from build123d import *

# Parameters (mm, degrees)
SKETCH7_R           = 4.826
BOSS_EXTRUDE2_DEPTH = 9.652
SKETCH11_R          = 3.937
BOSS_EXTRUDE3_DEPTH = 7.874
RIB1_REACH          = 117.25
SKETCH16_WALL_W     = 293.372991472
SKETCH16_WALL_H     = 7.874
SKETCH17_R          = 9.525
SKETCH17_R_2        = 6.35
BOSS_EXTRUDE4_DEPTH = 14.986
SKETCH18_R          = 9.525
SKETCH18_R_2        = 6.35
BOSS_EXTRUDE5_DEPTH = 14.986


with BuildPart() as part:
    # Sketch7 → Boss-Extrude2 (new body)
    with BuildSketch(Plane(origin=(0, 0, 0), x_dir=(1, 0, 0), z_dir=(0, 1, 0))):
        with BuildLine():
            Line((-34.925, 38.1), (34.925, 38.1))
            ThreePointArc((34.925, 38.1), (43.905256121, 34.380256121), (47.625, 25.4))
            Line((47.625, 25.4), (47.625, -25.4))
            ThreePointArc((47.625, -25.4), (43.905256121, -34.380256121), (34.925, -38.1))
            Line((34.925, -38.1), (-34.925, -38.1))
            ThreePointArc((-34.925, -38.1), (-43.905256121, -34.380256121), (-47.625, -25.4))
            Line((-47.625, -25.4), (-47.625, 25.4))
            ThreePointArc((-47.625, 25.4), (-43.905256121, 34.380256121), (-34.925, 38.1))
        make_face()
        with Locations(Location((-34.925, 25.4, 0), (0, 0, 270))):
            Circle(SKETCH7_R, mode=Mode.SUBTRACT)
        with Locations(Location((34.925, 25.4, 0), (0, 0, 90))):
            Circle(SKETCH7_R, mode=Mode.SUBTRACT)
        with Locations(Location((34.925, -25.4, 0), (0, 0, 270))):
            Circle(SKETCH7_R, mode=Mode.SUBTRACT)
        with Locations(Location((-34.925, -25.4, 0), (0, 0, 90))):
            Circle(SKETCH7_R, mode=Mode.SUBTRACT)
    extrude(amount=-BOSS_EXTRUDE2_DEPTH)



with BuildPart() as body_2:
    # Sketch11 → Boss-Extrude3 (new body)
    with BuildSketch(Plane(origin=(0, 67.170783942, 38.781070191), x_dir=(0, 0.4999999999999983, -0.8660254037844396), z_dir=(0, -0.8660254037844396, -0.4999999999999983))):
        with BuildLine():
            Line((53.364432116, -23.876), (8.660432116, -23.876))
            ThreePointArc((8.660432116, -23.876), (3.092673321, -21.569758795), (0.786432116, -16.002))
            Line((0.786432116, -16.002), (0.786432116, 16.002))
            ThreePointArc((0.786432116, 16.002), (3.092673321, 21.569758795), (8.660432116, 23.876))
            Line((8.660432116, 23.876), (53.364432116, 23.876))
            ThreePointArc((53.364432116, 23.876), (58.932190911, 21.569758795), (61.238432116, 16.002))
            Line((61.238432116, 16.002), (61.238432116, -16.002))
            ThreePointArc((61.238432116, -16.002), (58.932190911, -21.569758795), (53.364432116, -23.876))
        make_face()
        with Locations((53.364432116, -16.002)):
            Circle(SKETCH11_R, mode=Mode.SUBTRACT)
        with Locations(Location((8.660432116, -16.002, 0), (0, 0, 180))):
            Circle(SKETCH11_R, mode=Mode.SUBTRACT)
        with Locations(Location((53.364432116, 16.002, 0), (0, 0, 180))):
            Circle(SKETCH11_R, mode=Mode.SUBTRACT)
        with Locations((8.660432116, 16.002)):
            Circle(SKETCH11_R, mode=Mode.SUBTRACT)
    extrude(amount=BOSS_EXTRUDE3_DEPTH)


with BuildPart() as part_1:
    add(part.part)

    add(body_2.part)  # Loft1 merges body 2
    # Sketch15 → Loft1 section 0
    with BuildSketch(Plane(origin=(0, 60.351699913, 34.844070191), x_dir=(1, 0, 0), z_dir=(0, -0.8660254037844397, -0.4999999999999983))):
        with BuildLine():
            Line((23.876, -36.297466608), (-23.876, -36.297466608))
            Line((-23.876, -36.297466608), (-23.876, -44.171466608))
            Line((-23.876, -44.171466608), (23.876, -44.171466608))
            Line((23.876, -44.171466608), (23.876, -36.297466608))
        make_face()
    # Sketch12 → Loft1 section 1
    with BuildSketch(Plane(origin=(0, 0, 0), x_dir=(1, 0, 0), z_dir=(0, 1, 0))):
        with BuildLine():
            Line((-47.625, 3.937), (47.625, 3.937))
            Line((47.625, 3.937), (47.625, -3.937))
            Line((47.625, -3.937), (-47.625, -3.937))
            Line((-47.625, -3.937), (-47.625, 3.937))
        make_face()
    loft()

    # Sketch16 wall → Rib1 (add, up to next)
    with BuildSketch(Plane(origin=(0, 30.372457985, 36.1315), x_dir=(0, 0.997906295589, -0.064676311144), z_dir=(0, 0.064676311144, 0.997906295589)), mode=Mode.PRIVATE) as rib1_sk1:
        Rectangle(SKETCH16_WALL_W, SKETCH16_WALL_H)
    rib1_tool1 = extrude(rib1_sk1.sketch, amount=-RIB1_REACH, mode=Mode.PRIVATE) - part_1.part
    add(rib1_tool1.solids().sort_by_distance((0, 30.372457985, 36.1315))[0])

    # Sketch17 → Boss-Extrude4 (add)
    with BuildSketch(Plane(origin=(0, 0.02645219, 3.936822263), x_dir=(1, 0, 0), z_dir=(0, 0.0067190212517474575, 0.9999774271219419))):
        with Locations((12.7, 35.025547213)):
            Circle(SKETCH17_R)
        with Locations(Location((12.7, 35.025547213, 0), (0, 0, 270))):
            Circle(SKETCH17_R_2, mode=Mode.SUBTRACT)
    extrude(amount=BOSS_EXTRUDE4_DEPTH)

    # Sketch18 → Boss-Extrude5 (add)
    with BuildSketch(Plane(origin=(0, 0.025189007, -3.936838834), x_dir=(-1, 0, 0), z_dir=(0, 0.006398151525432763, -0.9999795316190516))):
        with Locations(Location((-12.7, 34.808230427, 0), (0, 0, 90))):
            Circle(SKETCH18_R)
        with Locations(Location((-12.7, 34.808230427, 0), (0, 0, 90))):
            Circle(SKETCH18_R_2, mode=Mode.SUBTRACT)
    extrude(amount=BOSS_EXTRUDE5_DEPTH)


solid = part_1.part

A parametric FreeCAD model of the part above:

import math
import FreeCAD as App
import Part
import Sketcher
Q = App.Units.Quantity

doc = App.newDocument("Part")
params = doc.addObject("Spreadsheet::Sheet", "Params")
for row, (alias, value) in enumerate([
    ("sketch1_radius", "0.5 in"),
    ("sketch1_diameter", "0.38 in"),
    ("sketch1_height", "2 in"),
    ("sketch1_width", "2.75 in"),
    ("pad1_length", "0.38 in"),
    ("sketch2_diameter", "0.31 in"),
    ("sketch2_radius", "0.31 in"),
    ("sketch2_width", "1.76 in"),
    ("sketch2_height", "1.26 in"),
    ("pad2_length", "0.31 in"),
    ("sketch3_width", "1.88 in"),
    ("sketch3_height", "0.31 in"),
    ("sketch4_width", "3.75 in"),
    ("sketch4_height", "0.31 in"),
    ("sketch5_height", "0.31 in"),
    ("sketch6_diameter", "0.5 in"),
    ("sketch6_diameter2", "0.75 in"),
    ("pad4_length", "0.59 in"),
    ("sketch7_diameter", "0.5 in"),
    ("sketch7_diameter2", "0.75 in"),
    ("pad5_length", "0.59 in"),
], start=1):
    params.set(f"A{row}", alias)
    params.set(f"B{row}", "=" + value)
    params.setAlias(f"B{row}", alias)

body = doc.addObject("PartDesign::Body", "Body")

sketch1 = doc.addObject("Sketcher::SketchObject", "Sketch")
body.addObject(sketch1)
sketch1.AttachmentSupport = (doc.XZ_Plane, [""])
sketch1.MapMode = "FlatFace"
sketch1.addGeometry([
    Part.LineSegment(App.Vector(34.9, -38.1, 0), App.Vector(-34.9, -38.1, 0)),
    Part.ArcOfCircle(Part.Circle(App.Vector(-34.9, -25.4, 0), App.Vector(0, 0, 1), 12.7), math.radians(180), math.radians(270)),
    Part.LineSegment(App.Vector(-47.6, -25.4, 0), App.Vector(-47.6, 25.4, 0)),
    Part.ArcOfCircle(Part.Circle(App.Vector(-34.9, 25.4, 0), App.Vector(0, 0, 1), 12.7), math.radians(90), math.radians(180)),
    Part.LineSegment(App.Vector(-34.9, 38.1, 0), App.Vector(34.9, 38.1, 0)),
    Part.ArcOfCircle(Part.Circle(App.Vector(34.9, 25.4, 0), App.Vector(0, 0, 1), 12.7), math.radians(0), math.radians(90)),
    Part.LineSegment(App.Vector(47.6, 25.4, 0), App.Vector(47.6, -25.4, 0)),
    Part.ArcOfCircle(Part.Circle(App.Vector(34.9, -25.4, 0), App.Vector(0, 0, 1), 12.7), math.radians(-90), math.radians(0)),
    Part.Circle(App.Vector(34.9, 25.4, 0), App.Vector(0, 0, 1), 4.8),
    Part.Circle(App.Vector(-34.9, 25.4, 0), App.Vector(0, 0, 1), 4.8),
    Part.Circle(App.Vector(34.9, -25.4, 0), App.Vector(0, 0, 1), 4.8),
    Part.Circle(App.Vector(-34.9, -25.4, 0), App.Vector(0, 0, 1), 4.8),
], False)
sketch1.addConstraint([
    Sketcher.Constraint("Tangent", 0, 2, 1, 2),
    Sketcher.Constraint("Tangent", 1, 1, 2, 1),
    Sketcher.Constraint("Tangent", 2, 2, 3, 2),
    Sketcher.Constraint("Tangent", 3, 1, 4, 1),
    Sketcher.Constraint("Tangent", 4, 2, 5, 2),
    Sketcher.Constraint("Tangent", 5, 1, 6, 1),
    Sketcher.Constraint("Tangent", 6, 2, 7, 2),
    Sketcher.Constraint("Tangent", 7, 1, 0, 1),
    Sketcher.Constraint("Horizontal", 0),
    Sketcher.Constraint("Vertical", 2),
    Sketcher.Constraint("Horizontal", 4),
    Sketcher.Constraint("Vertical", 6),
    Sketcher.Constraint("Coincident", 8, 3, 5, 3),
    Sketcher.Constraint("Coincident", 9, 3, 3, 3),
    Sketcher.Constraint("Coincident", 10, 3, 7, 3),
    Sketcher.Constraint("Coincident", 11, 3, 1, 3),
    Sketcher.Constraint("Equal", 1, 3),
    Sketcher.Constraint("Equal", 3, 5),
    Sketcher.Constraint("Equal", 5, 7),
    Sketcher.Constraint("Equal", 8, 9),
    Sketcher.Constraint("Equal", 9, 10),
    Sketcher.Constraint("Equal", 10, 11),
    Sketcher.Constraint("Symmetric", 1, 3, 5, 3, -1, 1),
    Sketcher.Constraint("Radius", 1, Q("0.5 in")),
    Sketcher.Constraint("Diameter", 8, Q("0.38 in")),
    Sketcher.Constraint("DistanceY", 2, 1, 2, 2, Q("2 in")),
    Sketcher.Constraint("DistanceX", 0, 2, 0, 1, Q("2.75 in")),
])
sketch1.setExpression("Constraints[23]", "Params.sketch1_radius")
sketch1.setExpression("Constraints[24]", "Params.sketch1_diameter")
sketch1.setExpression("Constraints[25]", "Params.sketch1_height")
sketch1.setExpression("Constraints[26]", "Params.sketch1_width")
pad1 = doc.addObject("PartDesign::Pad", "Pad")
body.addObject(pad1)
pad1.Profile = sketch1
pad1.setExpression("Length", "Params.pad1_length")
body2 = doc.addObject("PartDesign::Body", "Body001")

sketch2 = doc.addObject("Sketcher::SketchObject", "Sketch001")
body2.addObject(sketch2)
sketch2.Placement = App.Placement(App.Vector(0, 67.170784, 38.78107), App.Rotation(App.Vector(0, 0.5, -0.866025404), App.Vector(1, 0, 0), App.Vector(0, -0.866025404, -0.5), "ZXY"))
sketch2.addGeometry([
    Part.LineSegment(App.Vector(8.7, -23.9, 0), App.Vector(53.4, -23.9, 0)),
    Part.ArcOfCircle(Part.Circle(App.Vector(53.4, -16, 0), App.Vector(0, 0, 1), 7.9), math.radians(-90), math.radians(0)),
    Part.LineSegment(App.Vector(61.2, -16, 0), App.Vector(61.2, 16, 0)),
    Part.ArcOfCircle(Part.Circle(App.Vector(53.4, 16, 0), App.Vector(0, 0, 1), 7.9), math.radians(0), math.radians(90)),
    Part.LineSegment(App.Vector(53.4, 23.9, 0), App.Vector(8.7, 23.9, 0)),
    Part.ArcOfCircle(Part.Circle(App.Vector(8.7, 16, 0), App.Vector(0, 0, 1), 7.9), math.radians(90), math.radians(180)),
    Part.LineSegment(App.Vector(0.8, 16, 0), App.Vector(0.8, -16, 0)),
    Part.ArcOfCircle(Part.Circle(App.Vector(8.7, -16, 0), App.Vector(0, 0, 1), 7.9), math.radians(180), math.radians(270)),
    Part.Circle(App.Vector(53.4, -16, 0), App.Vector(0, 0, 1), 3.9),
    Part.Circle(App.Vector(8.7, -16, 0), App.Vector(0, 0, 1), 3.9),
    Part.Circle(App.Vector(53.4, 16, 0), App.Vector(0, 0, 1), 3.9),
    Part.Circle(App.Vector(8.7, 16, 0), App.Vector(0, 0, 1), 3.9),
], False)
sketch2.addConstraint([
    Sketcher.Constraint("Tangent", 0, 2, 1, 1),
    Sketcher.Constraint("Tangent", 1, 2, 2, 1),
    Sketcher.Constraint("Tangent", 2, 2, 3, 1),
    Sketcher.Constraint("Tangent", 3, 2, 4, 1),
    Sketcher.Constraint("Tangent", 4, 2, 5, 1),
    Sketcher.Constraint("Tangent", 5, 2, 6, 1),
    Sketcher.Constraint("Tangent", 6, 2, 7, 1),
    Sketcher.Constraint("Tangent", 7, 2, 0, 1),
    Sketcher.Constraint("Horizontal", 0),
    Sketcher.Constraint("Vertical", 2),
    Sketcher.Constraint("Horizontal", 4),
    Sketcher.Constraint("Vertical", 6),
    Sketcher.Constraint("Coincident", 8, 3, 1, 3),
    Sketcher.Constraint("Coincident", 9, 3, 7, 3),
    Sketcher.Constraint("Coincident", 10, 3, 3, 3),
    Sketcher.Constraint("Coincident", 11, 3, 5, 3),
    Sketcher.Constraint("Equal", 1, 3),
    Sketcher.Constraint("Equal", 3, 5),
    Sketcher.Constraint("Equal", 5, 7),
    Sketcher.Constraint("Equal", 8, 9),
    Sketcher.Constraint("Equal", 9, 10),
    Sketcher.Constraint("Equal", 10, 11),
    Sketcher.Constraint("Diameter", 8, Q("0.31 in")),
    Sketcher.Constraint("Radius", 1, Q("0.31 in")),
    Sketcher.Constraint("DistanceX", 0, 1, 0, 2, Q("1.76 in")),
    Sketcher.Constraint("DistanceY", 2, 1, 2, 2, Q("1.26 in")),
    Sketcher.Constraint("DistanceY", 1, 3, -1, 1, Q("0.63 in")),
    Sketcher.Constraint("DistanceX", -1, 1, 1, 3, 53.364432),
])
sketch2.setExpression("Constraints[22]", "Params.sketch2_diameter")
sketch2.setExpression("Constraints[23]", "Params.sketch2_radius")
sketch2.setExpression("Constraints[24]", "Params.sketch2_width")
sketch2.setExpression("Constraints[25]", "Params.sketch2_height")
pad2 = doc.addObject("PartDesign::Pad", "Pad001")
body2.addObject(pad2)
pad2.Profile = sketch2
pad2.setExpression("Length", "Params.pad2_length")
body.AllowCompound = True
doc.recompute()

boolean = doc.addObject("PartDesign::Boolean", "Boolean")
body.addObject(boolean)
boolean.Type = "Fuse"
boolean.addObjects([body2])

sketch3 = doc.addObject("Sketcher::SketchObject", "Sketch002")
body.addObject(sketch3)
sketch3.Placement = App.Placement(App.Vector(0, 60.3517, 34.84407), App.Rotation(App.Vector(1, 0, 0), App.Vector(0, -0.5, 0.866025404), App.Vector(0, -0.866025404, -0.5), "ZXY"))
sketch3.addGeometry([
    Part.LineSegment(App.Vector(24, -36, 0), App.Vector(-24, -36, 0)),
    Part.LineSegment(App.Vector(-24, -36, 0), App.Vector(-24, -44, 0)),
    Part.LineSegment(App.Vector(-24, -44, 0), App.Vector(24, -44, 0)),
    Part.LineSegment(App.Vector(24, -44, 0), App.Vector(24, -36, 0)),
], False)
sketch3.addConstraint([
    Sketcher.Constraint("Coincident", 0, 2, 1, 1),
    Sketcher.Constraint("Coincident", 1, 2, 2, 1),
    Sketcher.Constraint("Coincident", 2, 2, 3, 1),
    Sketcher.Constraint("Coincident", 3, 2, 0, 1),
    Sketcher.Constraint("Horizontal", 0),
    Sketcher.Constraint("Vertical", 1),
    Sketcher.Constraint("Horizontal", 2),
    Sketcher.Constraint("Vertical", 3),
    Sketcher.Constraint("DistanceX", 0, 2, 0, 1, Q("1.88 in")),
    Sketcher.Constraint("DistanceY", 1, 2, 1, 1, Q("0.31 in")),
    Sketcher.Constraint("DistanceX", 0, 2, -1, 1, Q("0.94 in")),
    Sketcher.Constraint("DistanceY", 0, 2, -1, 1, 36.297467),
])
sketch3.setExpression("Constraints[8]", "Params.sketch3_width")
sketch3.setExpression("Constraints[9]", "Params.sketch3_height")

sketch4 = doc.addObject("Sketcher::SketchObject", "Sketch003")
body.addObject(sketch4)
sketch4.AttachmentSupport = (doc.XZ_Plane, [""])
sketch4.MapMode = "FlatFace"
sketch4.addGeometry([
    Part.LineSegment(App.Vector(48, -4, 0), App.Vector(-48, -4, 0)),
    Part.LineSegment(App.Vector(-48, -4, 0), App.Vector(-48, 4, 0)),
    Part.LineSegment(App.Vector(-48, 4, 0), App.Vector(48, 4, 0)),
    Part.LineSegment(App.Vector(48, 4, 0), App.Vector(48, -4, 0)),
], False)
sketch4.addConstraint([
    Sketcher.Constraint("Coincident", 0, 2, 1, 1),
    Sketcher.Constraint("Coincident", 1, 2, 2, 1),
    Sketcher.Constraint("Coincident", 2, 2, 3, 1),
    Sketcher.Constraint("Coincident", 3, 2, 0, 1),
    Sketcher.Constraint("Horizontal", 0),
    Sketcher.Constraint("Vertical", 1),
    Sketcher.Constraint("Horizontal", 2),
    Sketcher.Constraint("Vertical", 3),
    Sketcher.Constraint("Symmetric", 0, 2, 2, 2, -1, 1),
    Sketcher.Constraint("DistanceX", 0, 2, 0, 1, Q("3.75 in")),
    Sketcher.Constraint("DistanceY", 1, 1, 1, 2, Q("0.31 in")),
])
sketch4.setExpression("Constraints[9]", "Params.sketch4_width")
sketch4.setExpression("Constraints[10]", "Params.sketch4_height")

additiveloft = doc.addObject("PartDesign::AdditiveLoft", "AdditiveLoft")
body.addObject(additiveloft)
additiveloft.Profile = sketch3
additiveloft.Sections = [sketch4]

sketch5 = doc.addObject("Sketcher::SketchObject", "Sketch004")
body.addObject(sketch5)
sketch5.Placement = App.Placement(App.Vector(0, 30.372458, 36.1315), App.Rotation(App.Vector(0, 0.997906296, -0.064676311), App.Vector(-1.000000001, 0, 0), App.Vector(0, 0.064676311, 0.997906296), "ZXY"))
sketch5.addGeometry([
    Part.LineSegment(App.Vector(-147, 4, 0), App.Vector(-147, -4, 0)),
    Part.LineSegment(App.Vector(-147, -4, 0), App.Vector(147, -4, 0)),
    Part.LineSegment(App.Vector(147, -4, 0), App.Vector(147, 4, 0)),
    Part.LineSegment(App.Vector(147, 4, 0), App.Vector(-147, 4, 0)),
], False)
sketch5.addConstraint([
    Sketcher.Constraint("Coincident", 0, 2, 1, 1),
    Sketcher.Constraint("Coincident", 1, 2, 2, 1),
    Sketcher.Constraint("Coincident", 2, 2, 3, 1),
    Sketcher.Constraint("Coincident", 3, 2, 0, 1),
    Sketcher.Constraint("Vertical", 0),
    Sketcher.Constraint("Horizontal", 1),
    Sketcher.Constraint("Vertical", 2),
    Sketcher.Constraint("Horizontal", 3),
    Sketcher.Constraint("Symmetric", 0, 2, 2, 2, -1, 1),
    Sketcher.Constraint("DistanceY", 0, 2, 0, 1, Q("0.31 in")),
    Sketcher.Constraint("DistanceX", 1, 1, 1, 2, 293.372992),
])
sketch5.setExpression("Constraints[9]", "Params.sketch5_height")
pad3 = doc.addObject("PartDesign::Pad", "Pad002")
body.addObject(pad3)
pad3.Profile = sketch5
pad3.Type = "UpToFirst"
pad3.Reversed = True

sketch6 = doc.addObject("Sketcher::SketchObject", "Sketch005")
body.addObject(sketch6)
sketch6.Placement = App.Placement(App.Vector(0, 0.026452, 3.936822), App.Rotation(App.Vector(1, 0, 0), App.Vector(0, 0.999977427, -0.006719021), App.Vector(0, 0.006719021, 0.999977427), "ZXY"))
sketch6.addGeometry([
    Part.Circle(App.Vector(13, 35, 0), App.Vector(0, 0, 1), 10),
    Part.Circle(App.Vector(13, 35, 0), App.Vector(0, 0, 1), 6),
], False)
sketch6.addConstraint([
    Sketcher.Constraint("Coincident", 1, 3, 0, 3),
    Sketcher.Constraint("Diameter", 1, Q("0.5 in")),
    Sketcher.Constraint("Diameter", 0, Q("0.75 in")),
    Sketcher.Constraint("DistanceX", -1, 1, 0, 3, Q("0.5 in")),
    Sketcher.Constraint("DistanceY", -1, 1, 0, 3, 35.025547),
])
sketch6.setExpression("Constraints[1]", "Params.sketch6_diameter")
sketch6.setExpression("Constraints[2]", "Params.sketch6_diameter2")
pad4 = doc.addObject("PartDesign::Pad", "Pad003")
body.addObject(pad4)
pad4.Profile = sketch6
pad4.setExpression("Length", "Params.pad4_length")

sketch7 = doc.addObject("Sketcher::SketchObject", "Sketch006")
body.addObject(sketch7)
sketch7.Placement = App.Placement(App.Vector(0, 0.025189, -3.936839), App.Rotation(App.Vector(-1, 0, 0), App.Vector(0, 0.999979532, 0.006398152), App.Vector(0, 0.006398152, -0.999979532), "ZXY"))
sketch7.addGeometry([
    Part.Circle(App.Vector(-13, 35, 0), App.Vector(0, 0, 1), 10),
    Part.Circle(App.Vector(-13, 35, 0), App.Vector(0, 0, 1), 6),
], False)
sketch7.addConstraint([
    Sketcher.Constraint("Coincident", 1, 3, 0, 3),
    Sketcher.Constraint("Diameter", 1, Q("0.5 in")),
    Sketcher.Constraint("Diameter", 0, Q("0.75 in")),
    Sketcher.Constraint("DistanceX", 0, 3, -1, 1, Q("0.5 in")),
    Sketcher.Constraint("DistanceY", -1, 1, 0, 3, 34.80823),
])
sketch7.setExpression("Constraints[1]", "Params.sketch7_diameter")
sketch7.setExpression("Constraints[2]", "Params.sketch7_diameter2")
pad5 = doc.addObject("PartDesign::Pad", "Pad004")
body.addObject(pad5)
pad5.Profile = sketch7
pad5.setExpression("Length", "Params.pad5_length")

doc.recompute()
